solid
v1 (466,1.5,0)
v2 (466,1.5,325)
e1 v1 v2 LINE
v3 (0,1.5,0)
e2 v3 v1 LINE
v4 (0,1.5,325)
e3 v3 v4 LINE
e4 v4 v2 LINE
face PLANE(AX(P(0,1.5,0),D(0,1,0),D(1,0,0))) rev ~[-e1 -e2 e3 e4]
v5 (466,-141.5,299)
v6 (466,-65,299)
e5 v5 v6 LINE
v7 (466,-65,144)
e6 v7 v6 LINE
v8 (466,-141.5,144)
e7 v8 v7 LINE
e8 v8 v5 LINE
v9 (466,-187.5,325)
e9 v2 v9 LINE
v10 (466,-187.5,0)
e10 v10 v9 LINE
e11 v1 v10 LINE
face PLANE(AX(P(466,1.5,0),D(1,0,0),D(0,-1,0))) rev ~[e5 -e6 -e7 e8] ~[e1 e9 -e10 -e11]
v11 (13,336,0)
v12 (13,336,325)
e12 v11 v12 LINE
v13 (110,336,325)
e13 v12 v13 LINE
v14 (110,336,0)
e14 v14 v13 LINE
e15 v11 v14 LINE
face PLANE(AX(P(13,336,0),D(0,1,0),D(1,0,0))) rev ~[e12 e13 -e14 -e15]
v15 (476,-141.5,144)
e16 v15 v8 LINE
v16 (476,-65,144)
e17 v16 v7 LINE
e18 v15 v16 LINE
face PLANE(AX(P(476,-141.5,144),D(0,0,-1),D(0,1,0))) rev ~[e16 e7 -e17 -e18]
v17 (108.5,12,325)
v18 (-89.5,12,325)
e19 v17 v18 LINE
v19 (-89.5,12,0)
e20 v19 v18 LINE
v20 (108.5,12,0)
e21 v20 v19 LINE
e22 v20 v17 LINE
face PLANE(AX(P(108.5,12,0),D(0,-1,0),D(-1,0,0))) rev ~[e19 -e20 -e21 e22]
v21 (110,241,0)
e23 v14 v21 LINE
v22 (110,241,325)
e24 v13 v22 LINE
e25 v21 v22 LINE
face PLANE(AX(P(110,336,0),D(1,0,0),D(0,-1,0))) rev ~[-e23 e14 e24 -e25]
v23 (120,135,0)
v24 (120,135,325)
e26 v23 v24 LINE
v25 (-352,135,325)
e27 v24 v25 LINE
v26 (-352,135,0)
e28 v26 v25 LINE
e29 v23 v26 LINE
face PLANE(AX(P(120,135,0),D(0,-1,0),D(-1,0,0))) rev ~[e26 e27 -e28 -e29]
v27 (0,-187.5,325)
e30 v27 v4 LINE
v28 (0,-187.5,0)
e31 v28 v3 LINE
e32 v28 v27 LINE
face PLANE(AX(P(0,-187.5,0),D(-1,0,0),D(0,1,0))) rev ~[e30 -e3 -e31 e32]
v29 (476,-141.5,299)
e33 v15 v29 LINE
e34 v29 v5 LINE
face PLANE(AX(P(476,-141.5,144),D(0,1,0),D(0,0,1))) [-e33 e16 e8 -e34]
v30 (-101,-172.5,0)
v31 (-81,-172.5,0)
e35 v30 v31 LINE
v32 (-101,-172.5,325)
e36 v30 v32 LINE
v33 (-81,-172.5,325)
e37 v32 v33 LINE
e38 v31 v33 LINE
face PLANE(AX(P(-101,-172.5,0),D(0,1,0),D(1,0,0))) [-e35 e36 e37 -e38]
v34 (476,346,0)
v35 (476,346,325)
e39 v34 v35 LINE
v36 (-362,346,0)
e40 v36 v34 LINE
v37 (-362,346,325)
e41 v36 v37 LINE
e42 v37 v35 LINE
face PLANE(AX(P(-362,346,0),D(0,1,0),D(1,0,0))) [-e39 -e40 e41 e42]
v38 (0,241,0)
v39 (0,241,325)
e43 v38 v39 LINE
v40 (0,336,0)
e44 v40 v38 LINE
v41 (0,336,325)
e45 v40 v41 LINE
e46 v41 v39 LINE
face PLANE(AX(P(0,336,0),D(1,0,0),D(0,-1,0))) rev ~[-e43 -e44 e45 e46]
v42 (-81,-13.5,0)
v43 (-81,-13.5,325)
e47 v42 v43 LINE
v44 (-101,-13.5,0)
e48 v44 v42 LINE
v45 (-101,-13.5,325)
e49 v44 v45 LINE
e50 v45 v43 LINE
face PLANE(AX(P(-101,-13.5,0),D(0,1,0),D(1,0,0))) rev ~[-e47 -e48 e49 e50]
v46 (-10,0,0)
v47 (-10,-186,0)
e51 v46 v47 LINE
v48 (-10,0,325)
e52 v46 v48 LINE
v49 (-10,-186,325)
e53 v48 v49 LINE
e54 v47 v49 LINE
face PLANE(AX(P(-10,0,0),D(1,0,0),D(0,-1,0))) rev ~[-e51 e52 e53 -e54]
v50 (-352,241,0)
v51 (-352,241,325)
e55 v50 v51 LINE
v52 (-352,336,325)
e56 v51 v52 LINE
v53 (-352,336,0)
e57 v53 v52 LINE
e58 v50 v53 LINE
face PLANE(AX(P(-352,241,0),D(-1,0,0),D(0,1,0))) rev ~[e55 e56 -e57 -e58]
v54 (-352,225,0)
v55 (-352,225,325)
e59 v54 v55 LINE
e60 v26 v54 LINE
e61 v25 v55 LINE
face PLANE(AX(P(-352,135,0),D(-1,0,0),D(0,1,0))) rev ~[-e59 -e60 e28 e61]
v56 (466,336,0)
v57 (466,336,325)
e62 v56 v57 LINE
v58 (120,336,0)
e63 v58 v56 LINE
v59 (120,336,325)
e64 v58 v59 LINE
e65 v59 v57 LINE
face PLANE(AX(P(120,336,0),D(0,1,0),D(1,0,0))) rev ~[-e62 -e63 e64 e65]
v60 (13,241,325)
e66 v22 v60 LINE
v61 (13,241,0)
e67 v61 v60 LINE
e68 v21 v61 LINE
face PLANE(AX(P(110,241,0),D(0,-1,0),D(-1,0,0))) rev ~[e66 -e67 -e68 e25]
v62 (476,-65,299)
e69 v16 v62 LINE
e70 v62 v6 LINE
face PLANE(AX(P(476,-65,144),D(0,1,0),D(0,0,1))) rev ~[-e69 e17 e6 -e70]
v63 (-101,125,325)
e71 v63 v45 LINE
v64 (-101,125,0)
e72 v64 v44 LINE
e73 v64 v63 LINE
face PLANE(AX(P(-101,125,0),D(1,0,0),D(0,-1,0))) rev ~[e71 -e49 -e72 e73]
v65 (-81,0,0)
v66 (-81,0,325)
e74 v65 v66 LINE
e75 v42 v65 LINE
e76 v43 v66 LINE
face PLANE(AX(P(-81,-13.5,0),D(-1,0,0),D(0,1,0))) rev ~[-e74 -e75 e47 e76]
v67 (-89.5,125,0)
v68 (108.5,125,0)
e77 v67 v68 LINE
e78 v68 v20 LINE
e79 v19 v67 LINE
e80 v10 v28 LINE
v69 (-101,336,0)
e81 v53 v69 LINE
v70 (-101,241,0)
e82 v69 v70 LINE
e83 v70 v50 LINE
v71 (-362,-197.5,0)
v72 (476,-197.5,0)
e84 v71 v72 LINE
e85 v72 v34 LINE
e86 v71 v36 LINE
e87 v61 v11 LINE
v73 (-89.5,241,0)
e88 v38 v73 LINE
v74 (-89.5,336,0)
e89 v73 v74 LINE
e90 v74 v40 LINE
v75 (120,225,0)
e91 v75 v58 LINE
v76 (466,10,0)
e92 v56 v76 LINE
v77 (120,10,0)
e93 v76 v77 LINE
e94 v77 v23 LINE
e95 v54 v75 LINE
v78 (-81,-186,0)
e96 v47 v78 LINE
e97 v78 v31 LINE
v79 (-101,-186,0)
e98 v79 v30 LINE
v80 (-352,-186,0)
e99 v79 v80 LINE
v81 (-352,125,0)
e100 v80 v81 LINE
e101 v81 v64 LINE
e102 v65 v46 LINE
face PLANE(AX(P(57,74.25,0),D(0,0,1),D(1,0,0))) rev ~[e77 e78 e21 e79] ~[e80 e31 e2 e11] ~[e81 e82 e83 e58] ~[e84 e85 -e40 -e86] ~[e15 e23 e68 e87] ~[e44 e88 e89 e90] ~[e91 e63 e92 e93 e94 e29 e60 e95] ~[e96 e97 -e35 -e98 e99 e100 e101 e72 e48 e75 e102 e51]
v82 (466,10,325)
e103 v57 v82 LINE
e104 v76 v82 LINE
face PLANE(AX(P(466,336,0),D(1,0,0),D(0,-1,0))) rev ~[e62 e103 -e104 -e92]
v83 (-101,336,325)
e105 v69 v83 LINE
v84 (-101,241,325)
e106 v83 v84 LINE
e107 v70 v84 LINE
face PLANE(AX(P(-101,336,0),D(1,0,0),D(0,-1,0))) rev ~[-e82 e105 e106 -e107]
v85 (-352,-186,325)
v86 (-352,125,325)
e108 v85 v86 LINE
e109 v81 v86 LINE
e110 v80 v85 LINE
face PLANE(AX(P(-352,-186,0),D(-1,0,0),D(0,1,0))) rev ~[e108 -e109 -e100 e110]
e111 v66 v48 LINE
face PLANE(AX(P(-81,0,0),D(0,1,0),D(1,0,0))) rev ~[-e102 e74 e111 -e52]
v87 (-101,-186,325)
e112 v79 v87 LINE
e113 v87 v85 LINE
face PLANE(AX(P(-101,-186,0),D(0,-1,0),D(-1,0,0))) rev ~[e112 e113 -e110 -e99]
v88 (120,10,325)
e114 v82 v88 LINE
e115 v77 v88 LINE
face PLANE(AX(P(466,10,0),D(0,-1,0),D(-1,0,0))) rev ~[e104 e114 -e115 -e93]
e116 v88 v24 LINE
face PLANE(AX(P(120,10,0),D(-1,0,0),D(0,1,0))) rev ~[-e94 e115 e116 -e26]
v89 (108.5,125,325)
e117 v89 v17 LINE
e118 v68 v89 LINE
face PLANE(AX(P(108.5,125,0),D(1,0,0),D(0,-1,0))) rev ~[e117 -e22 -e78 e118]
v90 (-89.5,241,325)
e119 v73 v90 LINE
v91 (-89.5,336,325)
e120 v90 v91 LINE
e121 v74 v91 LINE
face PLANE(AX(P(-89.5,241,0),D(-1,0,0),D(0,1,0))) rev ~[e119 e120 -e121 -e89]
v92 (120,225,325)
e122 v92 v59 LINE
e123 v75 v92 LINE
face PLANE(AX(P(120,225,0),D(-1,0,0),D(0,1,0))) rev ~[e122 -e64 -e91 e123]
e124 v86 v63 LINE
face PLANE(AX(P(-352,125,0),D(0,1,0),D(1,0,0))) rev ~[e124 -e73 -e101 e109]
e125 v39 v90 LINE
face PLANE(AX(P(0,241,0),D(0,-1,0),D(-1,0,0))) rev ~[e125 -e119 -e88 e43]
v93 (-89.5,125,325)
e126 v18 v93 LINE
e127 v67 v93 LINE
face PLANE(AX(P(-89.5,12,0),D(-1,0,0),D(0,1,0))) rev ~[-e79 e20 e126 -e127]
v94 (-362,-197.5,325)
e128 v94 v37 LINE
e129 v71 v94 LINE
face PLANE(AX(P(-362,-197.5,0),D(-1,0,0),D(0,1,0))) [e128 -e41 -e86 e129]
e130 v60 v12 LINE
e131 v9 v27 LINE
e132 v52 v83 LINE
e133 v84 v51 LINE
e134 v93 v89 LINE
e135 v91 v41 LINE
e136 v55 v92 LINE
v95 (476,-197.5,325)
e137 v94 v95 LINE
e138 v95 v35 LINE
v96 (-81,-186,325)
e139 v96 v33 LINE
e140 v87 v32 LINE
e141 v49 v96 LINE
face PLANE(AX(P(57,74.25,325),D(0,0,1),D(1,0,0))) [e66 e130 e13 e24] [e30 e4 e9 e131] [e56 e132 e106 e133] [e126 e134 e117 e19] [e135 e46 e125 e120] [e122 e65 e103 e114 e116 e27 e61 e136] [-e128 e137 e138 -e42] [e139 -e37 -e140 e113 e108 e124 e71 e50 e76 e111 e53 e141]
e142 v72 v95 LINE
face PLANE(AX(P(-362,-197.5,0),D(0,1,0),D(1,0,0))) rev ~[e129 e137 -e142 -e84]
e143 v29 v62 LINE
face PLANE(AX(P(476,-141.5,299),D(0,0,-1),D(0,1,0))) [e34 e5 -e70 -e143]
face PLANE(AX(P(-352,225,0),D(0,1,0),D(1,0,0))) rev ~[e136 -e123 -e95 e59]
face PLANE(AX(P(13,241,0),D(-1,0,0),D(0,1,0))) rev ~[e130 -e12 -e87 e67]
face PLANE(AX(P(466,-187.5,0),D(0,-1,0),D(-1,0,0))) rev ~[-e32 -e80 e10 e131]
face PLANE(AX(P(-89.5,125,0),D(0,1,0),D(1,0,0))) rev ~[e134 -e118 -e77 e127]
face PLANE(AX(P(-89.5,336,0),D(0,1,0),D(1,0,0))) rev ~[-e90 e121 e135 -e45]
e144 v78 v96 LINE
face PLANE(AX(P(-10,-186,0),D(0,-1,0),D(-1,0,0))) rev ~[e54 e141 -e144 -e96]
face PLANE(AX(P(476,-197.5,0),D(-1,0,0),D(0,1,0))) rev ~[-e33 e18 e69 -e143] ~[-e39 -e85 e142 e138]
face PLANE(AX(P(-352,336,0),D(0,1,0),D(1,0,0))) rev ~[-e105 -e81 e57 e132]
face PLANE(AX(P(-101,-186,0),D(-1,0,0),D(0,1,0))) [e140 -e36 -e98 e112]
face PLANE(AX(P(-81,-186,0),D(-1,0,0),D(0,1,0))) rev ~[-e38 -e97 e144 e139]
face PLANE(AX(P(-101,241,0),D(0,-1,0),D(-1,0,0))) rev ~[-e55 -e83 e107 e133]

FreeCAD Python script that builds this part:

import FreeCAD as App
import Part
import Sketcher
from FreeCAD import Vector
Q = App.Units.Quantity

doc = App.newDocument("Part")
body = doc.addObject("PartDesign::Body", "Body")

# Sketch on XY plane
sketch1 = body.newObject("Sketcher::SketchObject", "Sketch")
sketch1.AttachmentSupport = (doc.getObject("XY_Plane"), [""])
sketch1.MapMode = "FlatFace"
sketch1.addGeometry([
    Part.LineSegment(Vector(-362, 346, 0), Vector(-362, -198, 0)),  # 0
    Part.LineSegment(Vector(-362, -198, 0), Vector(476, -198, 0)),  # 1
    Part.LineSegment(Vector(476, -198, 0), Vector(476, 346, 0)),  # 2
    Part.LineSegment(Vector(476, 346, 0), Vector(-362, 346, 0)),  # 3
    Part.LineSegment(Vector(-10, -186, 0), Vector(-81, -186, 0)),  # 4
    Part.LineSegment(Vector(-81, -186, 0), Vector(-81, -172, 0)),  # 5
    Part.LineSegment(Vector(-81, -172, 0), Vector(-101, -172, 0)),  # 6
    Part.LineSegment(Vector(-101, -172, 0), Vector(-101, -186, 0)),  # 7
    Part.LineSegment(Vector(-101, -186, 0), Vector(-352, -186, 0)),  # 8
    Part.LineSegment(Vector(-352, -186, 0), Vector(-352, 125, 0)),  # 9
    Part.LineSegment(Vector(-352, 125, 0), Vector(-101, 125, 0)),  # 10
    Part.LineSegment(Vector(-101, 125, 0), Vector(-101, -14, 0)),  # 11
    Part.LineSegment(Vector(-101, -14, 0), Vector(-81, -14, 0)),  # 12
    Part.LineSegment(Vector(-81, -14, 0), Vector(-81, 0, 0)),  # 13
    Part.LineSegment(Vector(-81, 0, 0), Vector(-10, 0, 0)),  # 14
    Part.LineSegment(Vector(-10, 0, 0), Vector(-10, -186, 0)),  # 15
    Part.LineSegment(Vector(108, 12, 0), Vector(-90, 12, 0)),  # 16
    Part.LineSegment(Vector(-90, 12, 0), Vector(-90, 125, 0)),  # 17
    Part.LineSegment(Vector(-90, 125, 0), Vector(108, 125, 0)),  # 18
    Part.LineSegment(Vector(108, 125, 0), Vector(108, 12, 0)),  # 19
    Part.LineSegment(Vector(466, 2, 0), Vector(466, -188, 0)),  # 20
    Part.LineSegment(Vector(466, -188, 0), Vector(0, -188, 0)),  # 21
    Part.LineSegment(Vector(0, -188, 0), Vector(0, 2, 0)),  # 22
    Part.LineSegment(Vector(0, 2, 0), Vector(466, 2, 0)),  # 23
    Part.LineSegment(Vector(466, 336, 0), Vector(466, 10, 0)),  # 24
    Part.LineSegment(Vector(466, 10, 0), Vector(120, 10, 0)),  # 25
    Part.LineSegment(Vector(120, 10, 0), Vector(120, 135, 0)),  # 26
    Part.LineSegment(Vector(120, 135, 0), Vector(-352, 135, 0)),  # 27
    Part.LineSegment(Vector(-352, 135, 0), Vector(-352, 225, 0)),  # 28
    Part.LineSegment(Vector(-352, 225, 0), Vector(120, 225, 0)),  # 29
    Part.LineSegment(Vector(120, 225, 0), Vector(120, 336, 0)),  # 30
    Part.LineSegment(Vector(120, 336, 0), Vector(466, 336, 0)),  # 31
    Part.LineSegment(Vector(-352, 241, 0), Vector(-352, 336, 0)),  # 32
    Part.LineSegment(Vector(-352, 336, 0), Vector(-101, 336, 0)),  # 33
    Part.LineSegment(Vector(-101, 336, 0), Vector(-101, 241, 0)),  # 34
    Part.LineSegment(Vector(-101, 241, 0), Vector(-352, 241, 0)),  # 35
    Part.LineSegment(Vector(-90, 336, 0), Vector(0, 336, 0)),  # 36
    Part.LineSegment(Vector(0, 336, 0), Vector(0, 241, 0)),  # 37
    Part.LineSegment(Vector(0, 241, 0), Vector(-90, 241, 0)),  # 38
    Part.LineSegment(Vector(-90, 241, 0), Vector(-90, 336, 0)),  # 39
    Part.LineSegment(Vector(13, 336, 0), Vector(110, 336, 0)),  # 40
    Part.LineSegment(Vector(110, 336, 0), Vector(110, 241, 0)),  # 41
    Part.LineSegment(Vector(110, 241, 0), Vector(13, 241, 0)),  # 42
    Part.LineSegment(Vector(13, 241, 0), Vector(13, 336, 0)),  # 43
], False)
sketch1.addConstraint([
    Sketcher.Constraint("Coincident", 0, 2, 1, 1),
    Sketcher.Constraint("Coincident", 1, 2, 2, 1),
    Sketcher.Constraint("Coincident", 2, 2, 3, 1),
    Sketcher.Constraint("Coincident", 3, 2, 0, 1),
    Sketcher.Constraint("Coincident", 4, 2, 5, 1),
    Sketcher.Constraint("Coincident", 5, 2, 6, 1),
    Sketcher.Constraint("Coincident", 6, 2, 7, 1),
    Sketcher.Constraint("Coincident", 7, 2, 8, 1),
    Sketcher.Constraint("Coincident", 8, 2, 9, 1),
    Sketcher.Constraint("Coincident", 9, 2, 10, 1),
    Sketcher.Constraint("Coincident", 10, 2, 11, 1),
    Sketcher.Constraint("Coincident", 11, 2, 12, 1),
    Sketcher.Constraint("Coincident", 12, 2, 13, 1),
    Sketcher.Constraint("Coincident", 13, 2, 14, 1),
    Sketcher.Constraint("Coincident", 14, 2, 15, 1),
    Sketcher.Constraint("Coincident", 15, 2, 4, 1),
    Sketcher.Constraint("Coincident", 16, 2, 17, 1),
    Sketcher.Constraint("Coincident", 17, 2, 18, 1),
    Sketcher.Constraint("Coincident", 18, 2, 19, 1),
    Sketcher.Constraint("Coincident", 19, 2, 16, 1),
    Sketcher.Constraint("Coincident", 20, 2, 21, 1),
    Sketcher.Constraint("Coincident", 21, 2, 22, 1),
    Sketcher.Constraint("Coincident", 22, 2, 23, 1),
    Sketcher.Constraint("Coincident", 23, 2, 20, 1),
    Sketcher.Constraint("Coincident", 24, 2, 25, 1),
    Sketcher.Constraint("Coincident", 25, 2, 26, 1),
    Sketcher.Constraint("Coincident", 26, 2, 27, 1),
    Sketcher.Constraint("Coincident", 27, 2, 28, 1),
    Sketcher.Constraint("Coincident", 28, 2, 29, 1),
    Sketcher.Constraint("Coincident", 29, 2, 30, 1),
    Sketcher.Constraint("Coincident", 30, 2, 31, 1),
    Sketcher.Constraint("Coincident", 31, 2, 24, 1),
    Sketcher.Constraint("Coincident", 32, 2, 33, 1),
    Sketcher.Constraint("Coincident", 33, 2, 34, 1),
    Sketcher.Constraint("Coincident", 34, 2, 35, 1),
    Sketcher.Constraint("Coincident", 35, 2, 32, 1),
    Sketcher.Constraint("Coincident", 36, 2, 37, 1),
    Sketcher.Constraint("Coincident", 37, 2, 38, 1),
    Sketcher.Constraint("Coincident", 38, 2, 39, 1),
    Sketcher.Constraint("Coincident", 39, 2, 36, 1),
    Sketcher.Constraint("Coincident", 40, 2, 41, 1),
    Sketcher.Constraint("Coincident", 41, 2, 42, 1),
    Sketcher.Constraint("Coincident", 42, 2, 43, 1),
    Sketcher.Constraint("Coincident", 43, 2, 40, 1),
    Sketcher.Constraint("Vertical", 0),
    Sketcher.Constraint("Horizontal", 1),
    Sketcher.Constraint("Vertical", 2),
    Sketcher.Constraint("Horizontal", 3),
    Sketcher.Constraint("Horizontal", 4),
    Sketcher.Constraint("Vertical", 5),
    Sketcher.Constraint("Horizontal", 6),
    Sketcher.Constraint("Vertical", 7),
    Sketcher.Constraint("Horizontal", 8),
    Sketcher.Constraint("Vertical", 9),
    Sketcher.Constraint("Horizontal", 10),
    Sketcher.Constraint("Vertical", 11),
    Sketcher.Constraint("Horizontal", 12),
    Sketcher.Constraint("Vertical", 13),
    Sketcher.Constraint("Horizontal", 14),
    Sketcher.Constraint("Vertical", 15),
    Sketcher.Constraint("Horizontal", 16),
    Sketcher.Constraint("Vertical", 17),
    Sketcher.Constraint("Horizontal", 18),
    Sketcher.Constraint("Vertical", 19),
    Sketcher.Constraint("Vertical", 20),
    Sketcher.Constraint("Horizontal", 21),
    Sketcher.Constraint("Vertical", 22),
    Sketcher.Constraint("Horizontal", 23),
    Sketcher.Constraint("Vertical", 24),
    Sketcher.Constraint("Horizontal", 25),
    Sketcher.Constraint("Vertical", 26),
    Sketcher.Constraint("Horizontal", 27),
    Sketcher.Constraint("Vertical", 28),
    Sketcher.Constraint("Horizontal", 29),
    Sketcher.Constraint("Vertical", 30),
    Sketcher.Constraint("Horizontal", 31),
    Sketcher.Constraint("Vertical", 32),
    Sketcher.Constraint("Horizontal", 33),
    Sketcher.Constraint("Vertical", 34),
    Sketcher.Constraint("Horizontal", 35),
    Sketcher.Constraint("Horizontal", 36),
    Sketcher.Constraint("Vertical", 37),
    Sketcher.Constraint("Horizontal", 38),
    Sketcher.Constraint("Vertical", 39),
    Sketcher.Constraint("Horizontal", 40),
    Sketcher.Constraint("Vertical", 41),
    Sketcher.Constraint("Horizontal", 42),
    Sketcher.Constraint("Vertical", 43),
    Sketcher.Constraint("PointOnObject", 13, 2, -1),
    Sketcher.Constraint("PointOnObject", 21, 2, -2),
    Sketcher.Constraint("PointOnObject", 36, 2, -2),
    Sketcher.Constraint("Horizontal", 4, 2, 7, 2),
    Sketcher.Constraint("Horizontal", 10, 2, 17, 2),
    Sketcher.Constraint("Horizontal", 31, 2, 32, 2),
    Sketcher.Constraint("Horizontal", 33, 2, 36, 2),
    Sketcher.Constraint("Horizontal", 35, 2, 37, 2),
    Sketcher.Constraint("Horizontal", 39, 2, 40, 2),
    Sketcher.Constraint("Horizontal", 38, 2, 41, 2),
    Sketcher.Constraint("Vertical", 7, 2, 10, 2),
    Sketcher.Constraint("Vertical", 5, 2, 12, 2),
    Sketcher.Constraint("Vertical", 23, 2, 24, 2),
    Sketcher.Constraint("Vertical", 9, 2, 27, 2),
    Sketcher.Constraint("Vertical", 26, 2, 29, 2),
    Sketcher.Constraint("Vertical", 28, 2, 32, 2),
    Sketcher.Constraint("Vertical", 11, 2, 33, 2),
    Sketcher.Constraint("Vertical", 17, 2, 38, 2),
    Sketcher.Constraint("Equal", 7, 13),
    Sketcher.Constraint("DistanceX", 1, 1, 1, 2, Q("838 mm")),
    Sketcher.Constraint("DistanceX", 4, 2, 4, 1, Q("71 mm")),
    Sketcher.Constraint("DistanceX", 6, 2, 6, 1, Q("20 mm")),
    Sketcher.Constraint("DistanceX", 8, 2, 8, 1, Q("251 mm")),
    Sketcher.Constraint("DistanceX", 16, 2, 16, 1, Q("198 mm")),
    Sketcher.Constraint("DistanceX", 21, 2, 21, 1, Q("466 mm")),
    Sketcher.Constraint("DistanceX", 25, 2, 25, 1, Q("346 mm")),
    Sketcher.Constraint("DistanceX", 27, 2, 27, 1, Q("472 mm")),
    Sketcher.Constraint("DistanceX", 40, 1, 40, 2, Q("97 mm")),
    Sketcher.Constraint("DistanceY", 9, 1, 9, 2, Q("311 mm")),
    Sketcher.Constraint("DistanceY", 15, 2, 15, 1, Q("186 mm")),
    Sketcher.Constraint("DistanceY", 17, 1, 17, 2, Q("113 mm")),
    Sketcher.Constraint("DistanceY", 20, 2, 20, 1, Q("189 mm")),
    Sketcher.Constraint("DistanceY", 24, 2, 24, 1, Q("326 mm")),
    Sketcher.Constraint("DistanceY", 26, 1, 26, 2, Q("125 mm")),
    Sketcher.Constraint("DistanceY", 28, 1, 28, 2, Q("90 mm")),
    Sketcher.Constraint("DistanceY", 32, 1, 32, 2, Q("95 mm")),
    Sketcher.Constraint("DistanceX", 36, 1, 36, 2, Q("89.5 mm")),
    Sketcher.Constraint("DistanceY", 0, 2, 0, 1, Q("543.5 mm")),
    Sketcher.Constraint("DistanceY", 5, 1, 5, 2, Q("13.5 mm")),
    Sketcher.Constraint("DistanceX", 0, 2, -1, 1, Q("362 mm")),
    Sketcher.Constraint("DistanceY", -1, 1, 2, 2, Q("346 mm")),
    Sketcher.Constraint("DistanceY", -1, 1, 24, 2, Q("10 mm")),
    Sketcher.Constraint("DistanceX", -1, 1, 40, 2, Q("110 mm")),
    Sketcher.Constraint("DistanceY", 1, 2, 20, 2, Q("10 mm")),
])
pad1 = body.newObject("PartDesign::Pad", "Pad")
pad1.Profile = sketch1
pad1.Length = 325

# Sketch on YZ plane
sketch2 = body.newObject("Sketcher::SketchObject", "Sketch001")
sketch2.AttachmentSupport = (doc.getObject("YZ_Plane"), [""])
sketch2.MapMode = "FlatFace"
sketch2.AttachmentOffset = App.Placement(Vector(0, 0, 476), App.Rotation())
sketch2.addGeometry([
    Part.LineSegment(Vector(-142, 299, 0), Vector(-142, 144, 0)),
    Part.LineSegment(Vector(-142, 144, 0), Vector(-65, 144, 0)),
    Part.LineSegment(Vector(-65, 144, 0), Vector(-65, 299, 0)),
    Part.LineSegment(Vector(-65, 299, 0), Vector(-142, 299, 0)),
], False)
sketch2.addConstraint([
    Sketcher.Constraint("Coincident", 0, 2, 1, 1),
    Sketcher.Constraint("Coincident", 1, 2, 2, 1),
    Sketcher.Constraint("Coincident", 2, 2, 3, 1),
    Sketcher.Constraint("Coincident", 3, 2, 0, 1),
    Sketcher.Constraint("Vertical", 0),
    Sketcher.Constraint("Horizontal", 1),
    Sketcher.Constraint("Vertical", 2),
    Sketcher.Constraint("Horizontal", 3),
    Sketcher.Constraint("DistanceY", 0, 2, 0, 1, Q("155 mm")),
    Sketcher.Constraint("DistanceX", 1, 1, 1, 2, Q("76.5 mm")),
    Sketcher.Constraint("DistanceY", -1, 1, 0, 2, Q("144 mm")),
    Sketcher.Constraint("DistanceX", 1, 2, -1, 1, Q("65 mm")),
])
pocket1 = body.newObject("PartDesign::Pocket", "Pocket")
pocket1.Profile = sketch2
pocket1.Length = 25

doc.recompute()
